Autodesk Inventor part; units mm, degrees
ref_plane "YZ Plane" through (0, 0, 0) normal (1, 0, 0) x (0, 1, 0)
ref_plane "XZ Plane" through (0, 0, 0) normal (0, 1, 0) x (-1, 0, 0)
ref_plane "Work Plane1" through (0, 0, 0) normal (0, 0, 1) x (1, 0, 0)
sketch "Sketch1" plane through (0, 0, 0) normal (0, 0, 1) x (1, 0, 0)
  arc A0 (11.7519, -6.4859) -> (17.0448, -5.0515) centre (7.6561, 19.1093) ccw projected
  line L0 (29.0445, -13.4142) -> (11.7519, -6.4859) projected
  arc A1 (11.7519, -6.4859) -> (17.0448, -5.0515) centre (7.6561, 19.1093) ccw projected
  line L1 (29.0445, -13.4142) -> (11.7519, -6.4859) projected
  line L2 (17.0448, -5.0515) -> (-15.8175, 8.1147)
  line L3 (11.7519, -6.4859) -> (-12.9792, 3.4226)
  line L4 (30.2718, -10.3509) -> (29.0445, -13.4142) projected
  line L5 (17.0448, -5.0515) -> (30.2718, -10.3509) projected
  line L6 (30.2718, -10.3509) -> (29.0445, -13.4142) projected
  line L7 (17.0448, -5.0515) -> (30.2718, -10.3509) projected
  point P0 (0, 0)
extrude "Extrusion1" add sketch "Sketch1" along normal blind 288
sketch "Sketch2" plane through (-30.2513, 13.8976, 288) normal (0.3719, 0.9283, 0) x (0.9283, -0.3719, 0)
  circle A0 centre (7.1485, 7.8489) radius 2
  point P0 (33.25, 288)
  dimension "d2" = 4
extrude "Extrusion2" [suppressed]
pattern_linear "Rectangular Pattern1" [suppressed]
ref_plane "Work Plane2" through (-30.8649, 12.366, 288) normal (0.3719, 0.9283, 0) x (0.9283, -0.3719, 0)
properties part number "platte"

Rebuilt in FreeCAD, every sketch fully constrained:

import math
import FreeCAD as App
import Part
import Sketcher

doc = App.newDocument("Part")
params = doc.addObject("Spreadsheet::Sheet", "Params")
for row, (alias, value) in enumerate([
    ("sketch1_length", "3.3 mm"),
    ("pad1_length", "288 mm"),
], start=1):
    params.set(f"A{row}", alias)
    params.set(f"B{row}", "=" + value)
    params.setAlias(f"B{row}", alias)

body = doc.addObject("PartDesign::Body", "Body")

# Sketch on XY plane
sketch1 = body.newObject("Sketcher::SketchObject", "Sketch")
sketch1.AttachmentSupport = (doc.getObject("XY_Plane"), [""])
sketch1.MapMode = "FlatFace"
sketch1.addGeometry([
    Part.ArcOfCircle(Part.Circle(App.Vector(7.7, 19.1, 0), App.Vector(0, 0, 1), 25.9), math.radians(-80.91), math.radians(-68.77)),
    Part.LineSegment(App.Vector(11.8, -6.5, 0), App.Vector(29, -13.4, 0)),
    Part.LineSegment(App.Vector(29, -13.4, 0), App.Vector(30.3, -10.4, 0)),
    Part.LineSegment(App.Vector(30.3, -10.4, 0), App.Vector(17, -5.1, 0)),
], False)
sketch1.addConstraint([
    Sketcher.Constraint("Coincident", 0, 1, 1, 1),
    Sketcher.Constraint("Coincident", 1, 2, 2, 1),
    Sketcher.Constraint("Coincident", 2, 2, 3, 1),
    Sketcher.Constraint("Coincident", 3, 2, 0, 2),
    Sketcher.Constraint("Perpendicular", 1, 2),
    Sketcher.Constraint("Perpendicular", 2, 3),
    Sketcher.Constraint("Distance", 2, 3.3),
    Sketcher.Constraint("Radius", 0, 25.9245),
    Sketcher.Constraint("DistanceX", 0, 1, 2, 2, 18.52),
    Sketcher.Constraint("Distance", 1, 18.629),
    Sketcher.Constraint("Distance", 3, 14.249),
    Sketcher.Constraint("DistanceX", -1, 1, 0, 1, 11.752),
    Sketcher.Constraint("DistanceY", 0, 1, -1, 1, 6.486),
])
sketch1.setExpression("Constraints[6]", "Params.sketch1_length")
pad1 = body.newObject("PartDesign::Pad", "Pad")
pad1.Profile = sketch1
pad1.setExpression("Length", "Params.pad1_length")

doc.recompute()
